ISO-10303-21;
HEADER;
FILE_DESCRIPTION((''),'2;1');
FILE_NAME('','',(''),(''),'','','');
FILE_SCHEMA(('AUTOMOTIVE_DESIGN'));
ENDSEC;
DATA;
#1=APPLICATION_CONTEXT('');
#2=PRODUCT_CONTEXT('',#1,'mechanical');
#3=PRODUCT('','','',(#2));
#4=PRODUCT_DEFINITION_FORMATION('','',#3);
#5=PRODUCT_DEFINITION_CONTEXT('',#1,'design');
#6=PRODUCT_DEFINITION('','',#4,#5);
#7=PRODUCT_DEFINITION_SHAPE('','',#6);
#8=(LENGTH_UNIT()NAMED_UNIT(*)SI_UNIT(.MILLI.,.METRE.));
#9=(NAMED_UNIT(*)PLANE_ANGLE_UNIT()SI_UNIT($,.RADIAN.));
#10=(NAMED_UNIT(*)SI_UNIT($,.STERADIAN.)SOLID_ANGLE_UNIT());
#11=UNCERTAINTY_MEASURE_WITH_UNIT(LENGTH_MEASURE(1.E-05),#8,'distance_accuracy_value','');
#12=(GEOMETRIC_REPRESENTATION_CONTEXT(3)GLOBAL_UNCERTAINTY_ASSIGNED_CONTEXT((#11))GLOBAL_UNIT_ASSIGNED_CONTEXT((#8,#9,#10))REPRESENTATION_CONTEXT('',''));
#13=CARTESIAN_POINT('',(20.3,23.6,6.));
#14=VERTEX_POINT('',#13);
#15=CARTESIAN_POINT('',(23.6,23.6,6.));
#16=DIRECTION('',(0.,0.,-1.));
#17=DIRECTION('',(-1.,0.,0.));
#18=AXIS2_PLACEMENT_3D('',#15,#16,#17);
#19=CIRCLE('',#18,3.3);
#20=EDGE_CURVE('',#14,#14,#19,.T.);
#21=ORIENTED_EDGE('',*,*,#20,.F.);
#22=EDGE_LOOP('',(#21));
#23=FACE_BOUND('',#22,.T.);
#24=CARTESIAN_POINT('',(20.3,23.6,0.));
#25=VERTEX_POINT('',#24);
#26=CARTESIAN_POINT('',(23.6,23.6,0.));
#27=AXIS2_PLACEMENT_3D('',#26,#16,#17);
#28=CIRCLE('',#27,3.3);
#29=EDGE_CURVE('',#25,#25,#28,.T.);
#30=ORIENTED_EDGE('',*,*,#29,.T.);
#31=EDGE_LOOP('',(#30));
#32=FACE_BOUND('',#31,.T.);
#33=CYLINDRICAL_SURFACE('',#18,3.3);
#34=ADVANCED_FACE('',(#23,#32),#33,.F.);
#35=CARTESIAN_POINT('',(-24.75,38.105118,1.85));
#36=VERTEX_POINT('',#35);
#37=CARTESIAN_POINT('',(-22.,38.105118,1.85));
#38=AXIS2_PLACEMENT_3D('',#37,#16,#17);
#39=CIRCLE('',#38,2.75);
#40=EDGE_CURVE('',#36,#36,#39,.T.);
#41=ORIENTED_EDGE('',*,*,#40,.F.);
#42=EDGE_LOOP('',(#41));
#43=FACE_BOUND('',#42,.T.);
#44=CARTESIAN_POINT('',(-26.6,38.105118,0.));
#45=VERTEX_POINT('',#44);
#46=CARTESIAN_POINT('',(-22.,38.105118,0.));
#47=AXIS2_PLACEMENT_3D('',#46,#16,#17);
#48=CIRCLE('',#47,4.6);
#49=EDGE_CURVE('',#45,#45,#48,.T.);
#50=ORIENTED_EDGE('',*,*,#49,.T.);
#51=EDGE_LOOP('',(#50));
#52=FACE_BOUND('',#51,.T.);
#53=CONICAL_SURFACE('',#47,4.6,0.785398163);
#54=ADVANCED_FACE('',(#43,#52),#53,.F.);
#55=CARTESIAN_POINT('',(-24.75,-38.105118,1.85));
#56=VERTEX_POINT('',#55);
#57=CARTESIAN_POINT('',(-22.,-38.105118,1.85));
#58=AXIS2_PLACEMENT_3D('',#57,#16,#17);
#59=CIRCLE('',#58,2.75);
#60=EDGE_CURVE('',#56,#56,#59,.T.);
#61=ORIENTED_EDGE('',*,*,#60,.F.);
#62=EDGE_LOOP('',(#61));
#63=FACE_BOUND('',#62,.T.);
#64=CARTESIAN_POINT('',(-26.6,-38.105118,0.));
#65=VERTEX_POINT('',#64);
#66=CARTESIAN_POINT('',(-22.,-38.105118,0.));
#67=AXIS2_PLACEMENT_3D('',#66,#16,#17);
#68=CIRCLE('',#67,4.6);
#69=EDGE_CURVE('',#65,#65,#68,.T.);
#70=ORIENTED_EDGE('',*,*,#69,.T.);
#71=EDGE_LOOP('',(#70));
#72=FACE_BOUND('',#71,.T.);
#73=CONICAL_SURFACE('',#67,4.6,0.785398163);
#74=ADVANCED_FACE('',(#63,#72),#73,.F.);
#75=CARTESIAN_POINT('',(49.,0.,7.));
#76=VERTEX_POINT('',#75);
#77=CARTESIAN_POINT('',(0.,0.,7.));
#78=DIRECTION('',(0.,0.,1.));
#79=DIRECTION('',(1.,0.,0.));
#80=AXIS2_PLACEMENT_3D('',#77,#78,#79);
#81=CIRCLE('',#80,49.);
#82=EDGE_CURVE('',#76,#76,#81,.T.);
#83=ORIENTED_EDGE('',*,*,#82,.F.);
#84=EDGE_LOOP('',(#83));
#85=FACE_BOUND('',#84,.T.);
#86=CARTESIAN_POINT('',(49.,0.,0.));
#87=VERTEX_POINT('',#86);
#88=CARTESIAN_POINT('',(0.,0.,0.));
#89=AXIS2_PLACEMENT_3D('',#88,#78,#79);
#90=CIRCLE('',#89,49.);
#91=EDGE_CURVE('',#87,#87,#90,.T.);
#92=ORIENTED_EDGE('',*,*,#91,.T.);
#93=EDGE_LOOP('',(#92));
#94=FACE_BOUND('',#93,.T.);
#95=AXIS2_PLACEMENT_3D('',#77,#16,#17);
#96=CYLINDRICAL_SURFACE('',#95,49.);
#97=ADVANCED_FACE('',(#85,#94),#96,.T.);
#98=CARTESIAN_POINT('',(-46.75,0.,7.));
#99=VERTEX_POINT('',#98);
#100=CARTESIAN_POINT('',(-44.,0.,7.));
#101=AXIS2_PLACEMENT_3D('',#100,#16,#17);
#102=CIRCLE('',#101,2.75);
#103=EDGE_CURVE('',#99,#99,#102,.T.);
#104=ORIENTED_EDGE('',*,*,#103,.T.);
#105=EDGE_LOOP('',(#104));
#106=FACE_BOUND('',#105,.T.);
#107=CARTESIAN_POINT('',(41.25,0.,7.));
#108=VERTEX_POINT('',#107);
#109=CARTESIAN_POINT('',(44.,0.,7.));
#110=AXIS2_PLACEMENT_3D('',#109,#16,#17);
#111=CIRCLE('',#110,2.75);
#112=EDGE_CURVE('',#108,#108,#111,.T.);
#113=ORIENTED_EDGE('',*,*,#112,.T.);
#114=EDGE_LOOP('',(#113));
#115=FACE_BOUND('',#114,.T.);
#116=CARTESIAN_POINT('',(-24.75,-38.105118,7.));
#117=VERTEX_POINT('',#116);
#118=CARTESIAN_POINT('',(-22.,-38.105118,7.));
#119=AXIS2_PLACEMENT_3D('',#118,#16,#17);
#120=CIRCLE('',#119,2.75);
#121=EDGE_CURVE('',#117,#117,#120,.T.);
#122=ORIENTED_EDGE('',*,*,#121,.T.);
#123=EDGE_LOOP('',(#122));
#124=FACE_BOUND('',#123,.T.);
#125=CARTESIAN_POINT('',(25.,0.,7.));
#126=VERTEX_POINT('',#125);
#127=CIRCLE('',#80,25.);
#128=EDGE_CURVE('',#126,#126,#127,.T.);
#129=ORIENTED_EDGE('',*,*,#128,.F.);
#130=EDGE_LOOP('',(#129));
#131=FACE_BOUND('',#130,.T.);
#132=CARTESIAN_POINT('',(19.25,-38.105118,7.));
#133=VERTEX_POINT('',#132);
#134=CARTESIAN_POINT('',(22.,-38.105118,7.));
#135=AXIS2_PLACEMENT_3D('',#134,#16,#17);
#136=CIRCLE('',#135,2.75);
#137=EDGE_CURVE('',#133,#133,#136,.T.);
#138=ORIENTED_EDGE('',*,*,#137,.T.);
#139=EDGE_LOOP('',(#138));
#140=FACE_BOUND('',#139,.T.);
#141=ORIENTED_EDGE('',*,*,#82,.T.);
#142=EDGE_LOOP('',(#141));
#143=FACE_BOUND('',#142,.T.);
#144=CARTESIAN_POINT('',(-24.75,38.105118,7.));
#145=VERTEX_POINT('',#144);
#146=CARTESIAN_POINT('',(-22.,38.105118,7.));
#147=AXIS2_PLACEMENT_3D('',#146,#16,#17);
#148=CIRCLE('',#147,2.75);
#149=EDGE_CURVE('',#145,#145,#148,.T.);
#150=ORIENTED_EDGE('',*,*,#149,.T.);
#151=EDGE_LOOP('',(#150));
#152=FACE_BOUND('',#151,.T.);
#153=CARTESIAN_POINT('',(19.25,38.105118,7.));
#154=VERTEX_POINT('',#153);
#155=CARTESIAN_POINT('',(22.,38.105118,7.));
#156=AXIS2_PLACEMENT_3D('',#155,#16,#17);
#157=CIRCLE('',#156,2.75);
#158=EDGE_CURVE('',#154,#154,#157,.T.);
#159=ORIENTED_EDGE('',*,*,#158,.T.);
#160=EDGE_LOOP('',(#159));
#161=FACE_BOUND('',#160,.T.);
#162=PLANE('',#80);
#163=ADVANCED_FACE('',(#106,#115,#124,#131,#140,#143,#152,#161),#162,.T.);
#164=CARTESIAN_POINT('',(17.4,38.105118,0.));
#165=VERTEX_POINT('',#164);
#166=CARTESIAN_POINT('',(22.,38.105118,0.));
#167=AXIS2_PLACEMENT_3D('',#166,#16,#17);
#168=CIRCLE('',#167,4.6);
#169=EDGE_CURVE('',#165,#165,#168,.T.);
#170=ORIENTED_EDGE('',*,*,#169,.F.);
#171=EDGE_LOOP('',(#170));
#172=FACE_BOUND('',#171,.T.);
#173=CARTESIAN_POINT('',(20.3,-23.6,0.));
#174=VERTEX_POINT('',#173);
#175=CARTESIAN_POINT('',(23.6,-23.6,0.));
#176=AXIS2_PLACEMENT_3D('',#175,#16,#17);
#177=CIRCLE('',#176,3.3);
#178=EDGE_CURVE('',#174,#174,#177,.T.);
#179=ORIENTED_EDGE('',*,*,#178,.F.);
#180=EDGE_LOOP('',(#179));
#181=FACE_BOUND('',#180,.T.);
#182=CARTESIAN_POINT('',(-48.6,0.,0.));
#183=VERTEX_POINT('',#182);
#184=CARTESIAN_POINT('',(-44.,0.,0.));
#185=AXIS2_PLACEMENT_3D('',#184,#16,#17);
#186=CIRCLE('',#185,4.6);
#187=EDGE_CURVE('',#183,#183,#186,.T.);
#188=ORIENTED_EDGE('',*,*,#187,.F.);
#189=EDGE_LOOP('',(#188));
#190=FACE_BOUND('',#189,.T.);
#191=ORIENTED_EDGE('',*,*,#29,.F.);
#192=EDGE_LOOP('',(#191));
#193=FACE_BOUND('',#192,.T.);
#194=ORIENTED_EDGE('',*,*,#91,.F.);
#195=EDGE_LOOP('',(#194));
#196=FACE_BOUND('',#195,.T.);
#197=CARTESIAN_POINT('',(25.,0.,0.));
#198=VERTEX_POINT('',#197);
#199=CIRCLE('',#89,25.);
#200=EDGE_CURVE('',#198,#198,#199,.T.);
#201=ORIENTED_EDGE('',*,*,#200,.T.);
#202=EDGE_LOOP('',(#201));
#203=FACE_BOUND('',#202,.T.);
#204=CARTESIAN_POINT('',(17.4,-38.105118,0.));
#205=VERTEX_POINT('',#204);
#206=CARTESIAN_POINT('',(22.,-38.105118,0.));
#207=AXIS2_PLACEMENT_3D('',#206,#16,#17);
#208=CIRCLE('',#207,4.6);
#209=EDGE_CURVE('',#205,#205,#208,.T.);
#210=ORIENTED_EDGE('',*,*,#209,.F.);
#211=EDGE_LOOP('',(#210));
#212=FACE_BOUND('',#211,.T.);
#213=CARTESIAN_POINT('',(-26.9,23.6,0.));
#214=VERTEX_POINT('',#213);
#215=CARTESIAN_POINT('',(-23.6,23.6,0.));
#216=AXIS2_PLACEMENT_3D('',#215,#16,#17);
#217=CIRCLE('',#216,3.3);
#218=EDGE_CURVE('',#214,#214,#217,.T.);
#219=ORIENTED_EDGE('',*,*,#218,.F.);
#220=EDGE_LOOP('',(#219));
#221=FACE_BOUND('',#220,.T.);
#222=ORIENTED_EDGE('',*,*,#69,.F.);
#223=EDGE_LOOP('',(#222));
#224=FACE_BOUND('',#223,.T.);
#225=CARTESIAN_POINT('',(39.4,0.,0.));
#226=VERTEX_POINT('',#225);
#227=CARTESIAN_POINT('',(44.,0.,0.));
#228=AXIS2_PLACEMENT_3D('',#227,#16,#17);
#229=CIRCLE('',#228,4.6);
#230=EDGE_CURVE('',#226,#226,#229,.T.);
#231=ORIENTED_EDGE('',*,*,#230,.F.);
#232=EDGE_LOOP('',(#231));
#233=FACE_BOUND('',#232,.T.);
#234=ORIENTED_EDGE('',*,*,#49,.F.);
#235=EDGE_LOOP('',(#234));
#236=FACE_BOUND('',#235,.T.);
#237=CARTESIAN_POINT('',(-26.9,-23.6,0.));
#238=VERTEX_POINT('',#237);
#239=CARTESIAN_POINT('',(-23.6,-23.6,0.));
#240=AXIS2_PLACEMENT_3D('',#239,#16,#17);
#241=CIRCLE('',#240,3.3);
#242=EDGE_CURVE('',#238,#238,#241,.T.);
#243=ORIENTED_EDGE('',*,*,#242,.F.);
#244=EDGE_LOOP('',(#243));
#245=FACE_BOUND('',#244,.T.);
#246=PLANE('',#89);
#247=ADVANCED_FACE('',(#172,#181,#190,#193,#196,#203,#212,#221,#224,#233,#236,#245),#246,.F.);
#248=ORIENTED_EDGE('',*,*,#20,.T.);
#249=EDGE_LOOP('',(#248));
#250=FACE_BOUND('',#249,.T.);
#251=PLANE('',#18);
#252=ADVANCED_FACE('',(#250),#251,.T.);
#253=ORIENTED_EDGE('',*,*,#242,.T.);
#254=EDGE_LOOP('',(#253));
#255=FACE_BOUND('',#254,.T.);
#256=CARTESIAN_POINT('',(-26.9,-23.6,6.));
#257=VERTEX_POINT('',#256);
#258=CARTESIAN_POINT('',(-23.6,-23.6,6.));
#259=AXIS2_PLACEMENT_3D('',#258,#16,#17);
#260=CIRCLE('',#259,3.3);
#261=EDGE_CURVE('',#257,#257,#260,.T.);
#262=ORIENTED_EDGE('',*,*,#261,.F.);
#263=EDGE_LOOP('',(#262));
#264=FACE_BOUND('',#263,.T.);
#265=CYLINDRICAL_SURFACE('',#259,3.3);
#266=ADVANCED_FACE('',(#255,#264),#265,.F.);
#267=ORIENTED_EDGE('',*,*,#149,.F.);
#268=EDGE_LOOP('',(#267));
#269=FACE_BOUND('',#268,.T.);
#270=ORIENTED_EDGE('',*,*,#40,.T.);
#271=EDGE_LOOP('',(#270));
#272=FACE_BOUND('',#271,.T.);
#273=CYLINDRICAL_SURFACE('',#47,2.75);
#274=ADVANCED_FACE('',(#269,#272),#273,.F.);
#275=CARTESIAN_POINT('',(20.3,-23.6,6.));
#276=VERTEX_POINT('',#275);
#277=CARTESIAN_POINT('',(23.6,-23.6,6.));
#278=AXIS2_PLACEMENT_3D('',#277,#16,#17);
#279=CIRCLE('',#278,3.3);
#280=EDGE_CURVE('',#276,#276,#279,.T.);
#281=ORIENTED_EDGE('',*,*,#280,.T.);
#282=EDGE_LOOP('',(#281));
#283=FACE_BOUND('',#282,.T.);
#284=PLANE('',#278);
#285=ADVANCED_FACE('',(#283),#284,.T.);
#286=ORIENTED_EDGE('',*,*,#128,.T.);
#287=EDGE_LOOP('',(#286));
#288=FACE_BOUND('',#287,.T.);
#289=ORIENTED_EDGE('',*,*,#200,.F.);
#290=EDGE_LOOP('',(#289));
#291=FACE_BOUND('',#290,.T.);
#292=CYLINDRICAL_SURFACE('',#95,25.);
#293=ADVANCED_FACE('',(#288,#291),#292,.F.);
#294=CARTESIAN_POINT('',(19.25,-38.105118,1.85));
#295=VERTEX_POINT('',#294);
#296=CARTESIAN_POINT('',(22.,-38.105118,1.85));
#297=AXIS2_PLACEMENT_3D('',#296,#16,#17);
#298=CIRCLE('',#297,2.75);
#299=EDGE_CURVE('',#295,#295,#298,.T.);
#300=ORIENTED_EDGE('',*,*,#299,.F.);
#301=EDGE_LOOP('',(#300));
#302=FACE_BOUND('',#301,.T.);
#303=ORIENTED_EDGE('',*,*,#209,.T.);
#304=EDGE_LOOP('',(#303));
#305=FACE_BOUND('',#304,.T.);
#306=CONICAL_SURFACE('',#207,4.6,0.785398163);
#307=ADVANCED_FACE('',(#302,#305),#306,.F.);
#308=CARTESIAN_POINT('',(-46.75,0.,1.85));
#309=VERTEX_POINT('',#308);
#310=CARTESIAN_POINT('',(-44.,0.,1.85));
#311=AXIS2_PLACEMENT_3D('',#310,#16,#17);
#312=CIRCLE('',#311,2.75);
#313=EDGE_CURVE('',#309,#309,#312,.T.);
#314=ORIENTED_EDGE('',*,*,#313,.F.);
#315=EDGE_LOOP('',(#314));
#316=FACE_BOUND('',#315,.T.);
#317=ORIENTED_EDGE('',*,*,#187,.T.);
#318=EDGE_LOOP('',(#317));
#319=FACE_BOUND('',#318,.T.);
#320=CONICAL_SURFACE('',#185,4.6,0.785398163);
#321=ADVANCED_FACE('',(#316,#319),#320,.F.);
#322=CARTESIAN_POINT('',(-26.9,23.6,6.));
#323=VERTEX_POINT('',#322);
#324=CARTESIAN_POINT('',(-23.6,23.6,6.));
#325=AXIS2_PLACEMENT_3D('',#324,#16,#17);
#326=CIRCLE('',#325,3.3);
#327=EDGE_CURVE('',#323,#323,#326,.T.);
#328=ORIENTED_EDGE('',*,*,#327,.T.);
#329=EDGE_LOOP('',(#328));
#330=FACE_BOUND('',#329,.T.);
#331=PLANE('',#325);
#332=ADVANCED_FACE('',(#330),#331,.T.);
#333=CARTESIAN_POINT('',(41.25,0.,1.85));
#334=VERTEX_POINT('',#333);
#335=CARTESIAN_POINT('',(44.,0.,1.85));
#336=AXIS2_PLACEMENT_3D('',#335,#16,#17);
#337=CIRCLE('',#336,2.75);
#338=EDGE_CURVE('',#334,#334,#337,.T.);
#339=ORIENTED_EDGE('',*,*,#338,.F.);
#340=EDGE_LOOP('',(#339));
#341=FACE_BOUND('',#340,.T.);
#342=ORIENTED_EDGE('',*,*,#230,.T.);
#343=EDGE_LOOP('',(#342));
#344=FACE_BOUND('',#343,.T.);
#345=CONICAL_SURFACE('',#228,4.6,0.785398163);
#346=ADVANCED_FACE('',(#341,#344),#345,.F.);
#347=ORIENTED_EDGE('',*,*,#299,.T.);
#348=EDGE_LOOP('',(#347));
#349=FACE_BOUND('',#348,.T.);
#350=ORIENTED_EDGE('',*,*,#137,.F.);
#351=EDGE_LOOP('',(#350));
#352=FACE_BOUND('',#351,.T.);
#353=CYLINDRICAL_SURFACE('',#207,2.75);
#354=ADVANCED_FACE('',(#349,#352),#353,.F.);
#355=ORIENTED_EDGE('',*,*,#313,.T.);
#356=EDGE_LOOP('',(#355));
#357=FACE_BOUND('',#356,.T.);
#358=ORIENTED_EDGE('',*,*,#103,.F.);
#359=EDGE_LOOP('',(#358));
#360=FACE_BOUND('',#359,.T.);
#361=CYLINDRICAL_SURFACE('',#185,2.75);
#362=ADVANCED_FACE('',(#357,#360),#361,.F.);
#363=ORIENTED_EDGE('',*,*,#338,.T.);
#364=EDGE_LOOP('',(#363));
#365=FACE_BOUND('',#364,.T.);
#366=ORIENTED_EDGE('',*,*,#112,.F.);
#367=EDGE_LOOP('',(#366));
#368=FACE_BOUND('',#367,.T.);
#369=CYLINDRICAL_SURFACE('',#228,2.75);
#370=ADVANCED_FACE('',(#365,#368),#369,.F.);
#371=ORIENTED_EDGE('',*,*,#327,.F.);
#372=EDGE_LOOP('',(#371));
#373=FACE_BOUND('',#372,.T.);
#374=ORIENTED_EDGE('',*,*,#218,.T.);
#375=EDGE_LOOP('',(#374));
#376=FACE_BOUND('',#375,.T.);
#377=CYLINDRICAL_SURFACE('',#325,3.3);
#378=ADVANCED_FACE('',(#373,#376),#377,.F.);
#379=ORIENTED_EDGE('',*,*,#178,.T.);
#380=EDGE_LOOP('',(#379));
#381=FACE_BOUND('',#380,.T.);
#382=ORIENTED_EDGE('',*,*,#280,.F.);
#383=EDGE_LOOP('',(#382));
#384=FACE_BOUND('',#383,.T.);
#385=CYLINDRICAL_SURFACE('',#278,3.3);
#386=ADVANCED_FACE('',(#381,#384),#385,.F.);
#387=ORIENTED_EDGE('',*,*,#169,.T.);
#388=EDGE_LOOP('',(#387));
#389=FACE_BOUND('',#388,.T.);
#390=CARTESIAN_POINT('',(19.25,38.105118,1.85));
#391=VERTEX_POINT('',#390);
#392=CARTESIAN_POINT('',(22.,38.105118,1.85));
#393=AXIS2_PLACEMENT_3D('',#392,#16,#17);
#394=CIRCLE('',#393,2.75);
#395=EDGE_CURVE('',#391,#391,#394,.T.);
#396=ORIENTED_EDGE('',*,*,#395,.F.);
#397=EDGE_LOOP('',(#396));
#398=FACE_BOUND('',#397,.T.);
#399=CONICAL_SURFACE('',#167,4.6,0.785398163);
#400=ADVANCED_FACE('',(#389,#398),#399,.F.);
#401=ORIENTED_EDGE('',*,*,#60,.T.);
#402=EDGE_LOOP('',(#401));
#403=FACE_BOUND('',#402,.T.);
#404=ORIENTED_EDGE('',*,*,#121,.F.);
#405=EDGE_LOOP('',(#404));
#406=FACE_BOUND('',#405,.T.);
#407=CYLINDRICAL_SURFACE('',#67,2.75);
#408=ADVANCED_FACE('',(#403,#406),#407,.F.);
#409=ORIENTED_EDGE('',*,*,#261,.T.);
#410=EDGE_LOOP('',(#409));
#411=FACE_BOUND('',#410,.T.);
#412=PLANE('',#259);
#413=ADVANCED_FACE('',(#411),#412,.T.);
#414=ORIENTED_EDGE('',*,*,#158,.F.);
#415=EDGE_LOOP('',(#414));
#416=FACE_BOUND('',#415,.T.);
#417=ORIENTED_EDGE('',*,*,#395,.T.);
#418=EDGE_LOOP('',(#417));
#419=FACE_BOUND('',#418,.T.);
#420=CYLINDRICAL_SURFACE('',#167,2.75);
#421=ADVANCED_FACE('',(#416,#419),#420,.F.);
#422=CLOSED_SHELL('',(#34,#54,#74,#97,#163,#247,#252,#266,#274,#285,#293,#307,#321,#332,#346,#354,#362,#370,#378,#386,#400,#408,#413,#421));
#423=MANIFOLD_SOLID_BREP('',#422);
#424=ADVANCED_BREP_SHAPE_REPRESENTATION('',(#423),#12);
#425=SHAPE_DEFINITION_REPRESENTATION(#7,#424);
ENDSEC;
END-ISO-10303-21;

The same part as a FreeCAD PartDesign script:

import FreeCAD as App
import Part
import Sketcher

V = App.Vector
Q = App.Units.Quantity

doc = App.newDocument("Part")
body = doc.addObject("PartDesign::Body", "Body")

# Sketch on XY plane
sketch1 = doc.addObject("Sketcher::SketchObject", "Sketch")
body.addObject(sketch1)
sketch1.AttachmentSupport = (doc.XY_Plane, [""])
sketch1.MapMode = "FlatFace"
sketch1.addGeometry(Part.Circle(V(0, 0, 0), V(0, 0, 1), 49), False)
sketch1.addGeometry(Part.Circle(V(0, 0, 0), V(0, 0, 1), 25), False)
sketch1.addConstraint(Sketcher.Constraint("Coincident", 0, 3, -1, 1))
sketch1.addConstraint(Sketcher.Constraint("Coincident", 1, 3, -1, 1))
sketch1.addConstraint(Sketcher.Constraint("Diameter", 0, Q("98 mm")))
sketch1.addConstraint(Sketcher.Constraint("Diameter", 1, Q("50 mm")))
pad1 = doc.addObject("PartDesign::Pad", "Pad")
body.addObject(pad1)
pad1.Profile = sketch1
pad1.Length = 7

# Sketch on XY plane
sketch2 = doc.addObject("Sketcher::SketchObject", "Sketch001")
body.addObject(sketch2)
sketch2.AttachmentSupport = (doc.XY_Plane, [""])
sketch2.MapMode = "FlatFace"
sketch2.addGeometry(Part.Circle(V(-44, 0, 0), V(0, 0, 1), 2.8), False)
sketch2.addConstraint(Sketcher.Constraint("PointOnObject", 0, 3, -1))
sketch2.addConstraint(Sketcher.Constraint("Diameter", 0, Q("5.5 mm")))
sketch2.addConstraint(Sketcher.Constraint("DistanceX", 0, 3, -1, 1, Q("44 mm")))
doc.recompute()
hole = doc.addObject("PartDesign::Hole", "Hole")
body.addObject(hole)
hole.Profile = sketch2
hole.ThreadType = "None"
hole.Diameter = 5.5
hole.DepthType = "ThroughAll"
hole.HoleCutType = "Countersink"
hole.HoleCutDiameter = 9.2
hole.HoleCutCountersinkAngle = 90
hole.Reversed = True
doc.recompute()

polarpattern = doc.addObject("PartDesign::PolarPattern", "PolarPattern")
body.addObject(polarpattern)
polarpattern.Originals = [hole]
polarpattern.Axis = (doc.Z_Axis, [""])
polarpattern.Angle = 360
polarpattern.Occurrences = 6
body.Tip = polarpattern

# Sketch on XY plane
sketch3 = doc.addObject("Sketcher::SketchObject", "Sketch002")
body.addObject(sketch3)
sketch3.AttachmentSupport = (doc.XY_Plane, [""])
sketch3.MapMode = "FlatFace"
sketch3.addGeometry(Part.Circle(V(-23.6, 23.6, 0), V(0, 0, 1), 3.3), False)
sketch3.addGeometry(Part.Circle(V(-23.6, -23.6, 0), V(0, 0, 1), 3.3), False)
sketch3.addGeometry(Part.Circle(V(23.6, 23.6, 0), V(0, 0, 1), 3.3), False)
sketch3.addGeometry(Part.Circle(V(23.6, -23.6, 0), V(0, 0, 1), 3.3), False)
sketch3.addConstraint(Sketcher.Constraint("Equal", 0, 1))
sketch3.addConstraint(Sketcher.Constraint("Equal", 1, 2))
sketch3.addConstraint(Sketcher.Constraint("Equal", 2, 3))
sketch3.addConstraint(Sketcher.Constraint("Symmetric", 1, 3, 2, 3, -1, 1))
sketch3.addConstraint(Sketcher.Constraint("Symmetric", 0, 3, 3, 3, -1, 1))
sketch3.addConstraint(Sketcher.Constraint("Symmetric", 0, 3, 2, 3, -2))
sketch3.addConstraint(Sketcher.Constraint("Diameter", 0, Q("6.6 mm")))
sketch3.addConstraint(Sketcher.Constraint("DistanceX", 0, 3, -1, 1, Q("23.6 mm")))
sketch3.addConstraint(Sketcher.Constraint("DistanceY", -1, 1, 0, 3, Q("23.6 mm")))
pocket1 = doc.addObject("PartDesign::Pocket", "Pocket")
body.addObject(pocket1)
pocket1.Profile = sketch3
pocket1.Length = 6
pocket1.Reversed = True

doc.recompute()
